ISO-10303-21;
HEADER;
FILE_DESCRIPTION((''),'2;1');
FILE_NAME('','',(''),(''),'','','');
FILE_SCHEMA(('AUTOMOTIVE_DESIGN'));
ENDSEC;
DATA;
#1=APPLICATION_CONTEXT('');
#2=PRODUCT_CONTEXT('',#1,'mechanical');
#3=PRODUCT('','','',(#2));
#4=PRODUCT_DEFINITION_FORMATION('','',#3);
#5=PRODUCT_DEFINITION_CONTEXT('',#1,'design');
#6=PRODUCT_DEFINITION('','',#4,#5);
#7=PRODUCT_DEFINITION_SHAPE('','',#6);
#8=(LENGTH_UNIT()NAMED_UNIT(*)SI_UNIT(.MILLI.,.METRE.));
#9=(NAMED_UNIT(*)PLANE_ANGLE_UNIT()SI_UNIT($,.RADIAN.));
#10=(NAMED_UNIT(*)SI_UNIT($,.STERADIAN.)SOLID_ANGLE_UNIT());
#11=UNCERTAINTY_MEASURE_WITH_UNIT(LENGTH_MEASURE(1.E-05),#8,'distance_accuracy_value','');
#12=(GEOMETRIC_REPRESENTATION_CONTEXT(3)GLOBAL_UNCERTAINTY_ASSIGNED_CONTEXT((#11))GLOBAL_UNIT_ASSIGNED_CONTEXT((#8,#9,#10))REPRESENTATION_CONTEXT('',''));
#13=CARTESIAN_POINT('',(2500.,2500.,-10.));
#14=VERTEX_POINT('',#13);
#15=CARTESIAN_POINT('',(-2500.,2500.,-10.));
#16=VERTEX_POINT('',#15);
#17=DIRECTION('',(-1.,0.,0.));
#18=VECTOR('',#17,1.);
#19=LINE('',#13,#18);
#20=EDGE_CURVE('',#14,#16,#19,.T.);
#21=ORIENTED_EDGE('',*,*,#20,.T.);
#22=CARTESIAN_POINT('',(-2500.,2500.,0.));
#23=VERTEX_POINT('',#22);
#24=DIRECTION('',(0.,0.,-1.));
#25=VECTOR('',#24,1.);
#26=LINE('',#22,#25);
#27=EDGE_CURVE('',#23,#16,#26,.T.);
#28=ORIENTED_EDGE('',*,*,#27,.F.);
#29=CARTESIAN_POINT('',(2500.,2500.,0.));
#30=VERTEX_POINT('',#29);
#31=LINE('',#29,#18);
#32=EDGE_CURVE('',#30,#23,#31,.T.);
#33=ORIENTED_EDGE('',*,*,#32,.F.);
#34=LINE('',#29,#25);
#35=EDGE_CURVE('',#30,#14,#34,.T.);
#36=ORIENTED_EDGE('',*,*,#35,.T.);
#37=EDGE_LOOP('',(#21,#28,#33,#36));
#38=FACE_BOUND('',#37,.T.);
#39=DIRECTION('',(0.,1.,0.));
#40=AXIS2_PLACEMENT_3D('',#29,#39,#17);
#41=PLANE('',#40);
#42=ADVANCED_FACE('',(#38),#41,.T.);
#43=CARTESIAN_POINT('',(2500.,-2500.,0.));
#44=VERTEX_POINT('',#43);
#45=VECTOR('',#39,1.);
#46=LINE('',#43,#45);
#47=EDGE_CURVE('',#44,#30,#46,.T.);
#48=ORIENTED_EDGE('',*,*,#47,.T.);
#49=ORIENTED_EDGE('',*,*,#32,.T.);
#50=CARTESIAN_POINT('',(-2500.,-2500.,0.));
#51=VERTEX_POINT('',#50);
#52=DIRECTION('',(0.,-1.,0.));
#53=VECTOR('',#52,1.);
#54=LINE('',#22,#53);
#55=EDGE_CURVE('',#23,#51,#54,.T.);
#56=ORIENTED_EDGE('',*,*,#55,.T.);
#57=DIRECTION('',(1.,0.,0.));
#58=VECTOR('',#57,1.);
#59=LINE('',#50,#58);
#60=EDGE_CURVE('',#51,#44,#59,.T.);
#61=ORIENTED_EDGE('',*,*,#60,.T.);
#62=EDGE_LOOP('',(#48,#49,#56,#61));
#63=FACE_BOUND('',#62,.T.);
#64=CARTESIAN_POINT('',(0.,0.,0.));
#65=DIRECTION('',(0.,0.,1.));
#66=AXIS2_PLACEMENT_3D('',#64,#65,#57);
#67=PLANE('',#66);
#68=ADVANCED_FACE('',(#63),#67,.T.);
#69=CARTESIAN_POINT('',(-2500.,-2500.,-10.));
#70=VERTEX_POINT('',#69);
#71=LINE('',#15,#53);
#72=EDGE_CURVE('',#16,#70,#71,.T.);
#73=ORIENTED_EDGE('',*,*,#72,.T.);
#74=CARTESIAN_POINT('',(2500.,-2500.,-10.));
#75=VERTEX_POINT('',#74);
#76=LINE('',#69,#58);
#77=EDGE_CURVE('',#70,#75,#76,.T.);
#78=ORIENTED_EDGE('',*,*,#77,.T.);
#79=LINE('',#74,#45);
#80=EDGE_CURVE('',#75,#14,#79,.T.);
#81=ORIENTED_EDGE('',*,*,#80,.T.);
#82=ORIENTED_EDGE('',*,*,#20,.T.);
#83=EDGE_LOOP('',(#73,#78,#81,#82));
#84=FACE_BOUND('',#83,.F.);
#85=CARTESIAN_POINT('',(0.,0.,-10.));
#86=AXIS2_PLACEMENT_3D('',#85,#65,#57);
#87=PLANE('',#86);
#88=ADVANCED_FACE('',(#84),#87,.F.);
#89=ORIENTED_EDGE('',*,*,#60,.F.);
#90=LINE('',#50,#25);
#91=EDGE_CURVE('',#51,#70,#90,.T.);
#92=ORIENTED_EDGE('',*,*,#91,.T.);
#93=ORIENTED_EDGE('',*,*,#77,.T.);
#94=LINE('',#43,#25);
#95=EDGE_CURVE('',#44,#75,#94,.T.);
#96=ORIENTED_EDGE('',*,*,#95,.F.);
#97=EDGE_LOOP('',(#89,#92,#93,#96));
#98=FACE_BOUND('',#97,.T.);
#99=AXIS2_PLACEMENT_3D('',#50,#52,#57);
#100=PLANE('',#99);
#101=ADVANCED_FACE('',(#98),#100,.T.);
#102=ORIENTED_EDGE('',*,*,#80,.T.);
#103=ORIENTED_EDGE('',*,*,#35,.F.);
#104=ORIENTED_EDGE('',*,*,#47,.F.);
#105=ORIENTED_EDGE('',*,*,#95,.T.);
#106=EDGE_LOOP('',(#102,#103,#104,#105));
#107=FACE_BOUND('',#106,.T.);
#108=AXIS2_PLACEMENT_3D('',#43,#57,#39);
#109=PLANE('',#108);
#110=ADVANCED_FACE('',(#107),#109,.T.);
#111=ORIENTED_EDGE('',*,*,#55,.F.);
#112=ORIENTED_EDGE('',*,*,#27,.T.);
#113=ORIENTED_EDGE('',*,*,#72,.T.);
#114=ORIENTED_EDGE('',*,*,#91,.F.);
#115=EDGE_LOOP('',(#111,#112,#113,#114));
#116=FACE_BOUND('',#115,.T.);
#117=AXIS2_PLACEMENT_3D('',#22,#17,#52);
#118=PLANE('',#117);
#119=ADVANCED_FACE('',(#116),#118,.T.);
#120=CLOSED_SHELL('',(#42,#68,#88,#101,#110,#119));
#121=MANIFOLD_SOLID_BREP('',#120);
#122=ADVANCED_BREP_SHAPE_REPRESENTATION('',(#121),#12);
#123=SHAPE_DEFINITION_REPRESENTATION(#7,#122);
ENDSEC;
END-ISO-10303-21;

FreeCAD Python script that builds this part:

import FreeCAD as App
import Part
import Sketcher
Q = App.Units.Quantity

doc = App.newDocument("Part")
body = doc.addObject("PartDesign::Body", "Body")

sketch1 = body.newObject("Sketcher::SketchObject", "Sketch")
sketch1.AttachmentSupport = (doc.getObject("XY_Plane"), [""])
sketch1.MapMode = "FlatFace"
sketch1.addGeometry(Part.LineSegment(App.Vector(2500, -2500, 0), App.Vector(2500, 2500, 0)), False)
sketch1.addGeometry(Part.LineSegment(App.Vector(2500, 2500, 0), App.Vector(-2500, 2500, 0)), False)
sketch1.addGeometry(Part.LineSegment(App.Vector(-2500, 2500, 0), App.Vector(-2500, -2500, 0)), False)
sketch1.addGeometry(Part.LineSegment(App.Vector(-2500, -2500, 0), App.Vector(2500, -2500, 0)), False)
sketch1.addConstraint(Sketcher.Constraint("Coincident", 0, 2, 1, 1))
sketch1.addConstraint(Sketcher.Constraint("Coincident", 1, 2, 2, 1))
sketch1.addConstraint(Sketcher.Constraint("Coincident", 2, 2, 3, 1))
sketch1.addConstraint(Sketcher.Constraint("Coincident", 3, 2, 0, 1))
sketch1.addConstraint(Sketcher.Constraint("Vertical", 0))
sketch1.addConstraint(Sketcher.Constraint("Horizontal", 1))
sketch1.addConstraint(Sketcher.Constraint("Vertical", 2))
sketch1.addConstraint(Sketcher.Constraint("Horizontal", 3))
sketch1.addConstraint(Sketcher.Constraint("Symmetric", 0, 2, 2, 2, -1, 1))
sketch1.addConstraint(Sketcher.Constraint("Equal", 3, 0))
sketch1.addConstraint(Sketcher.Constraint("DistanceX", 1, 2, 1, 1, Q("5000 mm")))
pad1 = body.newObject("PartDesign::Pad", "Pad")
pad1.Profile = sketch1
pad1.Length = 10
pad1.Reversed = True

doc.recompute()
